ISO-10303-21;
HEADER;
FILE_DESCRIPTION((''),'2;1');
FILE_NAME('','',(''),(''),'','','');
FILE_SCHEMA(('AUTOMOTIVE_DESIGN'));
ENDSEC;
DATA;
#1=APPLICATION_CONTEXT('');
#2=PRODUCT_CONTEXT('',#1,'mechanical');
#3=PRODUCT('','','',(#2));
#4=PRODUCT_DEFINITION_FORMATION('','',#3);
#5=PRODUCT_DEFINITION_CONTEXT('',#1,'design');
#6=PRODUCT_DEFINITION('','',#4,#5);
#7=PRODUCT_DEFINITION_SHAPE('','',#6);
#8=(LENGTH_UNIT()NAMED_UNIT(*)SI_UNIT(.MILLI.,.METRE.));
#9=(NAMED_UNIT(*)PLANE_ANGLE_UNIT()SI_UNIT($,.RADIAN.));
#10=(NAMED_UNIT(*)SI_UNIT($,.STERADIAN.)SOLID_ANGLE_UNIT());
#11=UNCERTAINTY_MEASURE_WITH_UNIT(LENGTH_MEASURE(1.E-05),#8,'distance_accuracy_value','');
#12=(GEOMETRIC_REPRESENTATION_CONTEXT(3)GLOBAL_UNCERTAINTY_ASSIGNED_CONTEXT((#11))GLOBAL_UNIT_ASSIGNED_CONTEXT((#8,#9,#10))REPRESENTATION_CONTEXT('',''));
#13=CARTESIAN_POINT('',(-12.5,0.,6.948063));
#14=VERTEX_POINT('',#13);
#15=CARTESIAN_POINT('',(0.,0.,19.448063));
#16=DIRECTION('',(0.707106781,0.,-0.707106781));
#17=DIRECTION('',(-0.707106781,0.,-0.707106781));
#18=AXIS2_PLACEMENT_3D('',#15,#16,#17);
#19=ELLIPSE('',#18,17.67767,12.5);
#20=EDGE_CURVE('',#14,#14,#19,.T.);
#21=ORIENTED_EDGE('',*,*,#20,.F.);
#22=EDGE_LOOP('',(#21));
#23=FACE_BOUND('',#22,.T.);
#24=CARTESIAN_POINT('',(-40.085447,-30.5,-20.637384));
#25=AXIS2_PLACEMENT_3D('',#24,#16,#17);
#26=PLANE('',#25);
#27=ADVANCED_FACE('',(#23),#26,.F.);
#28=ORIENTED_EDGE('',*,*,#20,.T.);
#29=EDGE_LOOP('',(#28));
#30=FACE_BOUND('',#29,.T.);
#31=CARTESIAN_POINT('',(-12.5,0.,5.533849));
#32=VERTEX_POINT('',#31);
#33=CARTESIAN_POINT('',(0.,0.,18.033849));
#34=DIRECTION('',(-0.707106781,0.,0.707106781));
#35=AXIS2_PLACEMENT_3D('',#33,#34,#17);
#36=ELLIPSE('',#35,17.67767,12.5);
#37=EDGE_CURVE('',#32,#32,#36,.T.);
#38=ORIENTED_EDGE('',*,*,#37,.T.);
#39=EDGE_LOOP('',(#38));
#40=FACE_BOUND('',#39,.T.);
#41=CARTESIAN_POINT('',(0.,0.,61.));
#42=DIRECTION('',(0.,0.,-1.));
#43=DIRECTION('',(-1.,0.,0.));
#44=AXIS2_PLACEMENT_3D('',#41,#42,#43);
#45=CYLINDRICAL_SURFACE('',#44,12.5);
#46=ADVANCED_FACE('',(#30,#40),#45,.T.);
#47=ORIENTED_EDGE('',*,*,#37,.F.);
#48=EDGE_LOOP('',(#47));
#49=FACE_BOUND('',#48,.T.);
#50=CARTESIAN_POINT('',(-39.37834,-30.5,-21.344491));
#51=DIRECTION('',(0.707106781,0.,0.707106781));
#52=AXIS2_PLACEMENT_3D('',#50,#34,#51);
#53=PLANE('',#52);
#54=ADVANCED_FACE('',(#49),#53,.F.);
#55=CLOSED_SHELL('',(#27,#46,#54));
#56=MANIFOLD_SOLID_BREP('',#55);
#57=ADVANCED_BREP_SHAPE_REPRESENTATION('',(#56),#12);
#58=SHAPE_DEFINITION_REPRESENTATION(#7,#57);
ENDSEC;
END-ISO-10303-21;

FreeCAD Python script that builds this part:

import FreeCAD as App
import Part
import Sketcher
Q = App.Units.Quantity


def add_polygon(sketch, points):
    """Adds a closed chain of lines whose ends are joined by coincident constraints."""
    first, n = sketch.GeometryCount, len(points)
    for a, b in zip(points, points[1:] + points[:1]):
        sketch.addGeometry(Part.LineSegment(App.Vector(*a, 0), App.Vector(*b, 0)), False)
    for i in range(n):
        sketch.addConstraint(Sketcher.Constraint("Coincident", first + i, 2, first + (i + 1) % n, 1))

doc = App.newDocument("Part")
body = doc.addObject("PartDesign::Body", "Body")

# Sketch on XY plane
sketch1 = body.newObject("Sketcher::SketchObject", "Sketch")
sketch1.AttachmentSupport = (doc.getObject("XY_Plane"), [""])
sketch1.MapMode = "FlatFace"
sketch1.addGeometry(Part.Circle(App.Vector(0, 0, 0), App.Vector(0, 0, 1), 12), False)
sketch1.addConstraint(Sketcher.Constraint("Coincident", 0, 3, -1, 1))
sketch1.addConstraint(Sketcher.Constraint("Diameter", 0, Q("25 mm")))
pad1 = body.newObject("PartDesign::Pad", "Pad")
pad1.Profile = sketch1
pad1.Length = 61

# Sketch on XZ plane
sketch2 = body.newObject("Sketcher::SketchObject", "Sketch001")
sketch2.AttachmentSupport = (doc.getObject("XZ_Plane"), [""])
sketch2.MapMode = "FlatFace"
add_polygon(sketch2, [(-39, -21), (33, 51), (33, -4)])  # lines 0-2
add_polygon(sketch2, [(32, 52), (-40, -21), (-30, 64), (30, 64)])  # lines 3-6
sketch2.addConstraint(Sketcher.Constraint("Vertical", 1))
sketch2.addConstraint(Sketcher.Constraint("Horizontal", 5))
sketch2.addConstraint(Sketcher.Constraint("Parallel", 0, 3))
sketch2.addConstraint(Sketcher.Constraint("Equal", 0, 3))
sketch2.addConstraint(Sketcher.Constraint("Angle", 0, Q("45 deg")))
sketch2.addConstraint(Sketcher.Constraint("Distance", 0, Q("102.282531 mm")))
sketch2.addConstraint(Sketcher.Constraint("DistanceX", 5, 1, 5, 2, Q("59.359176 mm")))
sketch2.addConstraint(Sketcher.Constraint("DistanceY", 1, 2, 1, 1, Q("54.685517 mm")))
sketch2.addConstraint(Sketcher.Constraint("DistanceX", -1, 1, 0, 2, Q("32.946331 mm")))
sketch2.addConstraint(Sketcher.Constraint("DistanceY", -1, 1, 0, 2, Q("50.98018 mm")))
sketch2.addConstraint(Sketcher.Constraint("DistanceY", -1, 1, 4, 2, Q("63.951978 mm")))
sketch2.addConstraint(Sketcher.Constraint("DistanceX", -1, 1, 5, 2, Q("29.858689 mm")))
sketch2.addConstraint(Sketcher.Constraint("DistanceX", 3, 2, 1, 2, Q("73.031778 mm")))
sketch2.addConstraint(Sketcher.Constraint("DistanceY", 6, 2, 5, 2, Q("12.264691 mm")))
pocket1 = body.newObject("PartDesign::Pocket", "Pocket")
pocket1.Profile = sketch2
pocket1.Length = 61
pocket1.Midplane = True

doc.recompute()
